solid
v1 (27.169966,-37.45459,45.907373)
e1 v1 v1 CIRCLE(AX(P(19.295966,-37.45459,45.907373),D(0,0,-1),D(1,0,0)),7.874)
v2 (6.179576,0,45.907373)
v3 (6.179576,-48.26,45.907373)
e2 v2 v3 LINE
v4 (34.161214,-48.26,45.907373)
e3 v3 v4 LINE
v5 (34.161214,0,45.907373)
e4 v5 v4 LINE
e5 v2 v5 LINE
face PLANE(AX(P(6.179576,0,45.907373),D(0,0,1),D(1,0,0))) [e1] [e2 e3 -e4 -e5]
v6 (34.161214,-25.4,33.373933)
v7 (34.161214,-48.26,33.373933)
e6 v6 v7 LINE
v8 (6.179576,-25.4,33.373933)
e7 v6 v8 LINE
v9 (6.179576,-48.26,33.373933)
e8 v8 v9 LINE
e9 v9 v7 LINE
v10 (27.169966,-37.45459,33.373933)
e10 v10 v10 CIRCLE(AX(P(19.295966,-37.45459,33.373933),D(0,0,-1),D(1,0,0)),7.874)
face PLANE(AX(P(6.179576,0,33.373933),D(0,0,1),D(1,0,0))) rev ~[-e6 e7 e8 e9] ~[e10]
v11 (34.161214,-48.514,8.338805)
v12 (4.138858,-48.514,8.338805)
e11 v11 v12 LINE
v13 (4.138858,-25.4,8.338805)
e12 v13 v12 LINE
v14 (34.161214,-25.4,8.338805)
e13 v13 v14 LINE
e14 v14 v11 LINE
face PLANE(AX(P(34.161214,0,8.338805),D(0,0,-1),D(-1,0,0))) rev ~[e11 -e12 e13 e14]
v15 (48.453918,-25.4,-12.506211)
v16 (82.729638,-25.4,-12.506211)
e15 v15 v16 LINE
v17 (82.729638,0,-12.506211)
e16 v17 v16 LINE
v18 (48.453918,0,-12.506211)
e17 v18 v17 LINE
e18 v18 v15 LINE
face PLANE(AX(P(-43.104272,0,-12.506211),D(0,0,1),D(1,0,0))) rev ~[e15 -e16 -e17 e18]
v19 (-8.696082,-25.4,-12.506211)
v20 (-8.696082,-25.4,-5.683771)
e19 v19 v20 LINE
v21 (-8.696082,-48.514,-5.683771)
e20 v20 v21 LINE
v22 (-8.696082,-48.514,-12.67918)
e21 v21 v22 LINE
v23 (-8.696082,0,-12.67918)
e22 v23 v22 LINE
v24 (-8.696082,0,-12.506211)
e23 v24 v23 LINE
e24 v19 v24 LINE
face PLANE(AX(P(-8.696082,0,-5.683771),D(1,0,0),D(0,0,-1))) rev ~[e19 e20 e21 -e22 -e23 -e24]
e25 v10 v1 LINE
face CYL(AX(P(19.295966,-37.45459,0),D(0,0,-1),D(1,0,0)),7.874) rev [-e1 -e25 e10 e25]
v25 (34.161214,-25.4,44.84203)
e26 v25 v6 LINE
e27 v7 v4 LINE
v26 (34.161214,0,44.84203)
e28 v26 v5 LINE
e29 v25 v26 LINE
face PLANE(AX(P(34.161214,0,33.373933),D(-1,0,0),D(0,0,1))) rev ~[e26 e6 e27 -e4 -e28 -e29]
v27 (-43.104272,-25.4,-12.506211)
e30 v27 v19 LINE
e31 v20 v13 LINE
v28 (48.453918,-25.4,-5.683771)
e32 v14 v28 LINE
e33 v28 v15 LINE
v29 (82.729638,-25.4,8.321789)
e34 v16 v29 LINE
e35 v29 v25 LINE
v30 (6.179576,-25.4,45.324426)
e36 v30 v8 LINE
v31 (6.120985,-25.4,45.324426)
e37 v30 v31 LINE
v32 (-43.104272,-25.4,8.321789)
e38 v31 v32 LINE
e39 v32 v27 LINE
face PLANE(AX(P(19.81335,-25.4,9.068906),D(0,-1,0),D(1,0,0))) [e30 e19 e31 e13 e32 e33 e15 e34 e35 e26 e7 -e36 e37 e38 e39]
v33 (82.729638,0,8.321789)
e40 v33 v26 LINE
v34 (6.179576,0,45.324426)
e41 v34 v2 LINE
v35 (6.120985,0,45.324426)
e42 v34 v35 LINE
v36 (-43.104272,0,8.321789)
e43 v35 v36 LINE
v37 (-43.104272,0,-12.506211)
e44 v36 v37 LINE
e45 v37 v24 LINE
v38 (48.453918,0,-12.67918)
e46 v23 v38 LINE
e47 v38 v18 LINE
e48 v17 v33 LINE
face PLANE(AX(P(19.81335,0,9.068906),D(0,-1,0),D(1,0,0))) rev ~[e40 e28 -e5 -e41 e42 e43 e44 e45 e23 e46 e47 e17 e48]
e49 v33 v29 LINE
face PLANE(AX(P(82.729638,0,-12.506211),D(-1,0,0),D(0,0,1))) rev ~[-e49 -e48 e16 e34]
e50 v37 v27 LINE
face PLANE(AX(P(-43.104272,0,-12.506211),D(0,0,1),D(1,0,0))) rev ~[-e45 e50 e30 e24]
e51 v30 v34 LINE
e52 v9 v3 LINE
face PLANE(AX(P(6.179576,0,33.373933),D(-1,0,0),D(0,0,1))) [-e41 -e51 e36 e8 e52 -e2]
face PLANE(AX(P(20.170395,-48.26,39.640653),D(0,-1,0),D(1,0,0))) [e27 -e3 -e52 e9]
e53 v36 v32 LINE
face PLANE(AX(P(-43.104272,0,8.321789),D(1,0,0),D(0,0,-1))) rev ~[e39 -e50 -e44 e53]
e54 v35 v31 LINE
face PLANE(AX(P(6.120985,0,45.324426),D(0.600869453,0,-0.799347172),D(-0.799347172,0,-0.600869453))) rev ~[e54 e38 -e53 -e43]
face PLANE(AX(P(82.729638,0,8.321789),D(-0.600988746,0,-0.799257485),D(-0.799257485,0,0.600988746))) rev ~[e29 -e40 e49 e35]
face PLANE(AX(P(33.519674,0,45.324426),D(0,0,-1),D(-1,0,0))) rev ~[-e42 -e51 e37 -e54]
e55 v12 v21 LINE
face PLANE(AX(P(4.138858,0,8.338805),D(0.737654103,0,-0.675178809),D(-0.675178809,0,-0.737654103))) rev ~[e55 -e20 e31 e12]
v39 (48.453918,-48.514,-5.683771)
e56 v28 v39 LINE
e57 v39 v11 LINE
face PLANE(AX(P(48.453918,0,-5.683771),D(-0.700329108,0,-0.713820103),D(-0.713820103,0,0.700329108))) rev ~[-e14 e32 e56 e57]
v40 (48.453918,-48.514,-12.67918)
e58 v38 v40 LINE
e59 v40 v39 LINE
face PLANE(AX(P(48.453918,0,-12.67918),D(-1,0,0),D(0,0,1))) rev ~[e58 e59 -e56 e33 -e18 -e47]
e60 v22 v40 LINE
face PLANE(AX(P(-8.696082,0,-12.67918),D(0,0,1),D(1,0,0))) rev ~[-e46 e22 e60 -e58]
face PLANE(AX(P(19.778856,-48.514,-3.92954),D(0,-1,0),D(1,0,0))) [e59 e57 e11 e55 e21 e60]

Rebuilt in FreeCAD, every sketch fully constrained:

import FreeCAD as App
import Part
import Sketcher
Q = App.Units.Quantity


def add_polygon(sketch, points):
    """Adds a closed chain of lines whose ends are joined by coincident constraints."""
    first, n = sketch.GeometryCount, len(points)
    for a, b in zip(points, points[1:] + points[:1]):
        sketch.addGeometry(Part.LineSegment(App.Vector(*a, 0), App.Vector(*b, 0)), False)
    for i in range(n):
        sketch.addConstraint(Sketcher.Constraint("Coincident", first + i, 2, first + (i + 1) % n, 1))

doc = App.newDocument("Part")
params = doc.addObject("Spreadsheet::Sheet", "Params")
for row, (alias, value) in enumerate([
    ("sketch1_height", "0.82 in"),
    ("sketch1_length", "2.424 in"),
    ("pad1_length", "1 in"),
    ("pad2_length", "1.9 in"),
    ("sketch3_diameter", "0.62 in"),
    ("pocket1_length", "2.06 in"),
    ("sketch4_width", "2.25 in"),
    ("pad3_length", "1.91 in"),
], start=1):
    params.set(f"A{row}", alias)
    params.set(f"B{row}", "=" + value)
    params.setAlias(f"B{row}", alias)

body = doc.addObject("PartDesign::Body", "Body")

sketch1 = doc.addObject("Sketcher::SketchObject", "Sketch")
body.addObject(sketch1)
sketch1.AttachmentSupport = (doc.XZ_Plane, [""])
sketch1.MapMode = "FlatFace"
add_polygon(sketch1, [(6, 45), (-43, 8), (-43, -13), (83, -13), (83, 8), (34, 45)])
sketch1.addConstraint(Sketcher.Constraint("Vertical", 1))
sketch1.addConstraint(Sketcher.Constraint("Horizontal", 2))
sketch1.addConstraint(Sketcher.Constraint("Vertical", 3))
sketch1.addConstraint(Sketcher.Constraint("Horizontal", 5))
sketch1.addConstraint(Sketcher.Constraint("Horizontal", 0, 2, 3, 2))
sketch1.addConstraint(Sketcher.Constraint("DistanceY", 1, 2, 1, 1, Q("0.82 in")))
sketch1.addConstraint(Sketcher.Constraint("Distance", 4, Q("2.424 in")))
sketch1.addConstraint(Sketcher.Constraint("DistanceX", 4, 2, 3, 2, Q("1.9374002 in")))
sketch1.addConstraint(Sketcher.Constraint("DistanceX", 2, 1, 2, 2, 125.83391))
sketch1.addConstraint(Sketcher.Constraint("DistanceX", 5, 2, 5, 1, 27.398689))
sketch1.addConstraint(Sketcher.Constraint("DistanceY", -1, 1, 0, 2, 8.321789))
sketch1.addConstraint(Sketcher.Constraint("DistanceX", 0, 2, -1, 1, 43.104272))
sketch1.setExpression("Constraints[11]", "Params.sketch1_height")
sketch1.setExpression("Constraints[12]", "Params.sketch1_length")
pad1 = doc.addObject("PartDesign::Pad", "Pad")
body.addObject(pad1)
pad1.Profile = sketch1
pad1.setExpression("Length", "Params.pad1_length")

sketch2 = doc.addObject("Sketcher::SketchObject", "Sketch001")
body.addObject(sketch2)
sketch2.AttachmentSupport = (doc.XZ_Plane, [""])
sketch2.MapMode = "FlatFace"
add_polygon(sketch2, [(6, 46), (6, 33), (34, 33), (34, 46)])
sketch2.addConstraint(Sketcher.Constraint("Vertical", 0))
sketch2.addConstraint(Sketcher.Constraint("Horizontal", 1))
sketch2.addConstraint(Sketcher.Constraint("Vertical", 2))
sketch2.addConstraint(Sketcher.Constraint("Horizontal", 3))
sketch2.addConstraint(Sketcher.Constraint("DistanceX", 1, 1, 1, 2, 27.981639))
sketch2.addConstraint(Sketcher.Constraint("DistanceY", 0, 2, 0, 1, 12.533441))
sketch2.addConstraint(Sketcher.Constraint("DistanceX", -1, 1, 0, 2, 6.179576))
sketch2.addConstraint(Sketcher.Constraint("DistanceY", -1, 1, 0, 2, 33.373933))
pad2 = doc.addObject("PartDesign::Pad", "Pad001")
body.addObject(pad2)
pad2.Profile = sketch2
pad2.setExpression("Length", "Params.pad2_length")

sketch3 = doc.addObject("Sketcher::SketchObject", "Sketch002")
body.addObject(sketch3)
sketch3.AttachmentSupport = (doc.XY_Plane, [""])
sketch3.MapMode = "FlatFace"
sketch3.addGeometry(Part.Circle(App.Vector(19, -37, 0), App.Vector(0, 0, 1), 8), False)
sketch3.addConstraint(Sketcher.Constraint("Diameter", 0, Q("0.62 in")))
sketch3.addConstraint(Sketcher.Constraint("DistanceY", 0, 3, -1, 1, 37.45459))
sketch3.addConstraint(Sketcher.Constraint("DistanceX", -1, 1, 0, 3, 19.295966))
sketch3.setExpression("Constraints[0]", "Params.sketch3_diameter")
pocket1 = doc.addObject("PartDesign::Pocket", "Pocket")
body.addObject(pocket1)
pocket1.Profile = sketch3
pocket1.setExpression("Length", "Params.pocket1_length")
pocket1.Reversed = True

sketch4 = doc.addObject("Sketcher::SketchObject", "Sketch003")
body.addObject(sketch4)
sketch4.AttachmentSupport = (doc.XZ_Plane, [""])
sketch4.MapMode = "FlatFace"
add_polygon(sketch4, [(-9, -6), (-9, -13), (48, -13), (48, -6), (34, 8), (4, 8)])
sketch4.addConstraint(Sketcher.Constraint("Vertical", 0))
sketch4.addConstraint(Sketcher.Constraint("Horizontal", 1))
sketch4.addConstraint(Sketcher.Constraint("Vertical", 2))
sketch4.addConstraint(Sketcher.Constraint("Horizontal", 4))
sketch4.addConstraint(Sketcher.Constraint("Horizontal", 2, 2, 5, 2))
sketch4.addConstraint(Sketcher.Constraint("DistanceX", 1, 1, 1, 2, Q("2.25 in")))
sketch4.addConstraint(Sketcher.Constraint("DistanceY", 0, 2, 0, 1, 6.995409))
sketch4.addConstraint(Sketcher.Constraint("Distance", 5, 19.00969))
sketch4.addConstraint(Sketcher.Constraint("DistanceX", 4, 2, 4, 1, 30.022356))
sketch4.addConstraint(Sketcher.Constraint("DistanceY", 0, 2, -1, 1, 12.67918))
sketch4.addConstraint(Sketcher.Constraint("DistanceX", -1, 1, 1, 2, 48.453918))
sketch4.addConstraint(Sketcher.Constraint("DistanceX", 0, 2, 4, 2, 12.83494))
sketch4.setExpression("Constraints[11]", "Params.sketch4_width")
pad3 = doc.addObject("PartDesign::Pad", "Pad002")
body.addObject(pad3)
pad3.Profile = sketch4
pad3.setExpression("Length", "Params.pad3_length")

doc.recompute()
